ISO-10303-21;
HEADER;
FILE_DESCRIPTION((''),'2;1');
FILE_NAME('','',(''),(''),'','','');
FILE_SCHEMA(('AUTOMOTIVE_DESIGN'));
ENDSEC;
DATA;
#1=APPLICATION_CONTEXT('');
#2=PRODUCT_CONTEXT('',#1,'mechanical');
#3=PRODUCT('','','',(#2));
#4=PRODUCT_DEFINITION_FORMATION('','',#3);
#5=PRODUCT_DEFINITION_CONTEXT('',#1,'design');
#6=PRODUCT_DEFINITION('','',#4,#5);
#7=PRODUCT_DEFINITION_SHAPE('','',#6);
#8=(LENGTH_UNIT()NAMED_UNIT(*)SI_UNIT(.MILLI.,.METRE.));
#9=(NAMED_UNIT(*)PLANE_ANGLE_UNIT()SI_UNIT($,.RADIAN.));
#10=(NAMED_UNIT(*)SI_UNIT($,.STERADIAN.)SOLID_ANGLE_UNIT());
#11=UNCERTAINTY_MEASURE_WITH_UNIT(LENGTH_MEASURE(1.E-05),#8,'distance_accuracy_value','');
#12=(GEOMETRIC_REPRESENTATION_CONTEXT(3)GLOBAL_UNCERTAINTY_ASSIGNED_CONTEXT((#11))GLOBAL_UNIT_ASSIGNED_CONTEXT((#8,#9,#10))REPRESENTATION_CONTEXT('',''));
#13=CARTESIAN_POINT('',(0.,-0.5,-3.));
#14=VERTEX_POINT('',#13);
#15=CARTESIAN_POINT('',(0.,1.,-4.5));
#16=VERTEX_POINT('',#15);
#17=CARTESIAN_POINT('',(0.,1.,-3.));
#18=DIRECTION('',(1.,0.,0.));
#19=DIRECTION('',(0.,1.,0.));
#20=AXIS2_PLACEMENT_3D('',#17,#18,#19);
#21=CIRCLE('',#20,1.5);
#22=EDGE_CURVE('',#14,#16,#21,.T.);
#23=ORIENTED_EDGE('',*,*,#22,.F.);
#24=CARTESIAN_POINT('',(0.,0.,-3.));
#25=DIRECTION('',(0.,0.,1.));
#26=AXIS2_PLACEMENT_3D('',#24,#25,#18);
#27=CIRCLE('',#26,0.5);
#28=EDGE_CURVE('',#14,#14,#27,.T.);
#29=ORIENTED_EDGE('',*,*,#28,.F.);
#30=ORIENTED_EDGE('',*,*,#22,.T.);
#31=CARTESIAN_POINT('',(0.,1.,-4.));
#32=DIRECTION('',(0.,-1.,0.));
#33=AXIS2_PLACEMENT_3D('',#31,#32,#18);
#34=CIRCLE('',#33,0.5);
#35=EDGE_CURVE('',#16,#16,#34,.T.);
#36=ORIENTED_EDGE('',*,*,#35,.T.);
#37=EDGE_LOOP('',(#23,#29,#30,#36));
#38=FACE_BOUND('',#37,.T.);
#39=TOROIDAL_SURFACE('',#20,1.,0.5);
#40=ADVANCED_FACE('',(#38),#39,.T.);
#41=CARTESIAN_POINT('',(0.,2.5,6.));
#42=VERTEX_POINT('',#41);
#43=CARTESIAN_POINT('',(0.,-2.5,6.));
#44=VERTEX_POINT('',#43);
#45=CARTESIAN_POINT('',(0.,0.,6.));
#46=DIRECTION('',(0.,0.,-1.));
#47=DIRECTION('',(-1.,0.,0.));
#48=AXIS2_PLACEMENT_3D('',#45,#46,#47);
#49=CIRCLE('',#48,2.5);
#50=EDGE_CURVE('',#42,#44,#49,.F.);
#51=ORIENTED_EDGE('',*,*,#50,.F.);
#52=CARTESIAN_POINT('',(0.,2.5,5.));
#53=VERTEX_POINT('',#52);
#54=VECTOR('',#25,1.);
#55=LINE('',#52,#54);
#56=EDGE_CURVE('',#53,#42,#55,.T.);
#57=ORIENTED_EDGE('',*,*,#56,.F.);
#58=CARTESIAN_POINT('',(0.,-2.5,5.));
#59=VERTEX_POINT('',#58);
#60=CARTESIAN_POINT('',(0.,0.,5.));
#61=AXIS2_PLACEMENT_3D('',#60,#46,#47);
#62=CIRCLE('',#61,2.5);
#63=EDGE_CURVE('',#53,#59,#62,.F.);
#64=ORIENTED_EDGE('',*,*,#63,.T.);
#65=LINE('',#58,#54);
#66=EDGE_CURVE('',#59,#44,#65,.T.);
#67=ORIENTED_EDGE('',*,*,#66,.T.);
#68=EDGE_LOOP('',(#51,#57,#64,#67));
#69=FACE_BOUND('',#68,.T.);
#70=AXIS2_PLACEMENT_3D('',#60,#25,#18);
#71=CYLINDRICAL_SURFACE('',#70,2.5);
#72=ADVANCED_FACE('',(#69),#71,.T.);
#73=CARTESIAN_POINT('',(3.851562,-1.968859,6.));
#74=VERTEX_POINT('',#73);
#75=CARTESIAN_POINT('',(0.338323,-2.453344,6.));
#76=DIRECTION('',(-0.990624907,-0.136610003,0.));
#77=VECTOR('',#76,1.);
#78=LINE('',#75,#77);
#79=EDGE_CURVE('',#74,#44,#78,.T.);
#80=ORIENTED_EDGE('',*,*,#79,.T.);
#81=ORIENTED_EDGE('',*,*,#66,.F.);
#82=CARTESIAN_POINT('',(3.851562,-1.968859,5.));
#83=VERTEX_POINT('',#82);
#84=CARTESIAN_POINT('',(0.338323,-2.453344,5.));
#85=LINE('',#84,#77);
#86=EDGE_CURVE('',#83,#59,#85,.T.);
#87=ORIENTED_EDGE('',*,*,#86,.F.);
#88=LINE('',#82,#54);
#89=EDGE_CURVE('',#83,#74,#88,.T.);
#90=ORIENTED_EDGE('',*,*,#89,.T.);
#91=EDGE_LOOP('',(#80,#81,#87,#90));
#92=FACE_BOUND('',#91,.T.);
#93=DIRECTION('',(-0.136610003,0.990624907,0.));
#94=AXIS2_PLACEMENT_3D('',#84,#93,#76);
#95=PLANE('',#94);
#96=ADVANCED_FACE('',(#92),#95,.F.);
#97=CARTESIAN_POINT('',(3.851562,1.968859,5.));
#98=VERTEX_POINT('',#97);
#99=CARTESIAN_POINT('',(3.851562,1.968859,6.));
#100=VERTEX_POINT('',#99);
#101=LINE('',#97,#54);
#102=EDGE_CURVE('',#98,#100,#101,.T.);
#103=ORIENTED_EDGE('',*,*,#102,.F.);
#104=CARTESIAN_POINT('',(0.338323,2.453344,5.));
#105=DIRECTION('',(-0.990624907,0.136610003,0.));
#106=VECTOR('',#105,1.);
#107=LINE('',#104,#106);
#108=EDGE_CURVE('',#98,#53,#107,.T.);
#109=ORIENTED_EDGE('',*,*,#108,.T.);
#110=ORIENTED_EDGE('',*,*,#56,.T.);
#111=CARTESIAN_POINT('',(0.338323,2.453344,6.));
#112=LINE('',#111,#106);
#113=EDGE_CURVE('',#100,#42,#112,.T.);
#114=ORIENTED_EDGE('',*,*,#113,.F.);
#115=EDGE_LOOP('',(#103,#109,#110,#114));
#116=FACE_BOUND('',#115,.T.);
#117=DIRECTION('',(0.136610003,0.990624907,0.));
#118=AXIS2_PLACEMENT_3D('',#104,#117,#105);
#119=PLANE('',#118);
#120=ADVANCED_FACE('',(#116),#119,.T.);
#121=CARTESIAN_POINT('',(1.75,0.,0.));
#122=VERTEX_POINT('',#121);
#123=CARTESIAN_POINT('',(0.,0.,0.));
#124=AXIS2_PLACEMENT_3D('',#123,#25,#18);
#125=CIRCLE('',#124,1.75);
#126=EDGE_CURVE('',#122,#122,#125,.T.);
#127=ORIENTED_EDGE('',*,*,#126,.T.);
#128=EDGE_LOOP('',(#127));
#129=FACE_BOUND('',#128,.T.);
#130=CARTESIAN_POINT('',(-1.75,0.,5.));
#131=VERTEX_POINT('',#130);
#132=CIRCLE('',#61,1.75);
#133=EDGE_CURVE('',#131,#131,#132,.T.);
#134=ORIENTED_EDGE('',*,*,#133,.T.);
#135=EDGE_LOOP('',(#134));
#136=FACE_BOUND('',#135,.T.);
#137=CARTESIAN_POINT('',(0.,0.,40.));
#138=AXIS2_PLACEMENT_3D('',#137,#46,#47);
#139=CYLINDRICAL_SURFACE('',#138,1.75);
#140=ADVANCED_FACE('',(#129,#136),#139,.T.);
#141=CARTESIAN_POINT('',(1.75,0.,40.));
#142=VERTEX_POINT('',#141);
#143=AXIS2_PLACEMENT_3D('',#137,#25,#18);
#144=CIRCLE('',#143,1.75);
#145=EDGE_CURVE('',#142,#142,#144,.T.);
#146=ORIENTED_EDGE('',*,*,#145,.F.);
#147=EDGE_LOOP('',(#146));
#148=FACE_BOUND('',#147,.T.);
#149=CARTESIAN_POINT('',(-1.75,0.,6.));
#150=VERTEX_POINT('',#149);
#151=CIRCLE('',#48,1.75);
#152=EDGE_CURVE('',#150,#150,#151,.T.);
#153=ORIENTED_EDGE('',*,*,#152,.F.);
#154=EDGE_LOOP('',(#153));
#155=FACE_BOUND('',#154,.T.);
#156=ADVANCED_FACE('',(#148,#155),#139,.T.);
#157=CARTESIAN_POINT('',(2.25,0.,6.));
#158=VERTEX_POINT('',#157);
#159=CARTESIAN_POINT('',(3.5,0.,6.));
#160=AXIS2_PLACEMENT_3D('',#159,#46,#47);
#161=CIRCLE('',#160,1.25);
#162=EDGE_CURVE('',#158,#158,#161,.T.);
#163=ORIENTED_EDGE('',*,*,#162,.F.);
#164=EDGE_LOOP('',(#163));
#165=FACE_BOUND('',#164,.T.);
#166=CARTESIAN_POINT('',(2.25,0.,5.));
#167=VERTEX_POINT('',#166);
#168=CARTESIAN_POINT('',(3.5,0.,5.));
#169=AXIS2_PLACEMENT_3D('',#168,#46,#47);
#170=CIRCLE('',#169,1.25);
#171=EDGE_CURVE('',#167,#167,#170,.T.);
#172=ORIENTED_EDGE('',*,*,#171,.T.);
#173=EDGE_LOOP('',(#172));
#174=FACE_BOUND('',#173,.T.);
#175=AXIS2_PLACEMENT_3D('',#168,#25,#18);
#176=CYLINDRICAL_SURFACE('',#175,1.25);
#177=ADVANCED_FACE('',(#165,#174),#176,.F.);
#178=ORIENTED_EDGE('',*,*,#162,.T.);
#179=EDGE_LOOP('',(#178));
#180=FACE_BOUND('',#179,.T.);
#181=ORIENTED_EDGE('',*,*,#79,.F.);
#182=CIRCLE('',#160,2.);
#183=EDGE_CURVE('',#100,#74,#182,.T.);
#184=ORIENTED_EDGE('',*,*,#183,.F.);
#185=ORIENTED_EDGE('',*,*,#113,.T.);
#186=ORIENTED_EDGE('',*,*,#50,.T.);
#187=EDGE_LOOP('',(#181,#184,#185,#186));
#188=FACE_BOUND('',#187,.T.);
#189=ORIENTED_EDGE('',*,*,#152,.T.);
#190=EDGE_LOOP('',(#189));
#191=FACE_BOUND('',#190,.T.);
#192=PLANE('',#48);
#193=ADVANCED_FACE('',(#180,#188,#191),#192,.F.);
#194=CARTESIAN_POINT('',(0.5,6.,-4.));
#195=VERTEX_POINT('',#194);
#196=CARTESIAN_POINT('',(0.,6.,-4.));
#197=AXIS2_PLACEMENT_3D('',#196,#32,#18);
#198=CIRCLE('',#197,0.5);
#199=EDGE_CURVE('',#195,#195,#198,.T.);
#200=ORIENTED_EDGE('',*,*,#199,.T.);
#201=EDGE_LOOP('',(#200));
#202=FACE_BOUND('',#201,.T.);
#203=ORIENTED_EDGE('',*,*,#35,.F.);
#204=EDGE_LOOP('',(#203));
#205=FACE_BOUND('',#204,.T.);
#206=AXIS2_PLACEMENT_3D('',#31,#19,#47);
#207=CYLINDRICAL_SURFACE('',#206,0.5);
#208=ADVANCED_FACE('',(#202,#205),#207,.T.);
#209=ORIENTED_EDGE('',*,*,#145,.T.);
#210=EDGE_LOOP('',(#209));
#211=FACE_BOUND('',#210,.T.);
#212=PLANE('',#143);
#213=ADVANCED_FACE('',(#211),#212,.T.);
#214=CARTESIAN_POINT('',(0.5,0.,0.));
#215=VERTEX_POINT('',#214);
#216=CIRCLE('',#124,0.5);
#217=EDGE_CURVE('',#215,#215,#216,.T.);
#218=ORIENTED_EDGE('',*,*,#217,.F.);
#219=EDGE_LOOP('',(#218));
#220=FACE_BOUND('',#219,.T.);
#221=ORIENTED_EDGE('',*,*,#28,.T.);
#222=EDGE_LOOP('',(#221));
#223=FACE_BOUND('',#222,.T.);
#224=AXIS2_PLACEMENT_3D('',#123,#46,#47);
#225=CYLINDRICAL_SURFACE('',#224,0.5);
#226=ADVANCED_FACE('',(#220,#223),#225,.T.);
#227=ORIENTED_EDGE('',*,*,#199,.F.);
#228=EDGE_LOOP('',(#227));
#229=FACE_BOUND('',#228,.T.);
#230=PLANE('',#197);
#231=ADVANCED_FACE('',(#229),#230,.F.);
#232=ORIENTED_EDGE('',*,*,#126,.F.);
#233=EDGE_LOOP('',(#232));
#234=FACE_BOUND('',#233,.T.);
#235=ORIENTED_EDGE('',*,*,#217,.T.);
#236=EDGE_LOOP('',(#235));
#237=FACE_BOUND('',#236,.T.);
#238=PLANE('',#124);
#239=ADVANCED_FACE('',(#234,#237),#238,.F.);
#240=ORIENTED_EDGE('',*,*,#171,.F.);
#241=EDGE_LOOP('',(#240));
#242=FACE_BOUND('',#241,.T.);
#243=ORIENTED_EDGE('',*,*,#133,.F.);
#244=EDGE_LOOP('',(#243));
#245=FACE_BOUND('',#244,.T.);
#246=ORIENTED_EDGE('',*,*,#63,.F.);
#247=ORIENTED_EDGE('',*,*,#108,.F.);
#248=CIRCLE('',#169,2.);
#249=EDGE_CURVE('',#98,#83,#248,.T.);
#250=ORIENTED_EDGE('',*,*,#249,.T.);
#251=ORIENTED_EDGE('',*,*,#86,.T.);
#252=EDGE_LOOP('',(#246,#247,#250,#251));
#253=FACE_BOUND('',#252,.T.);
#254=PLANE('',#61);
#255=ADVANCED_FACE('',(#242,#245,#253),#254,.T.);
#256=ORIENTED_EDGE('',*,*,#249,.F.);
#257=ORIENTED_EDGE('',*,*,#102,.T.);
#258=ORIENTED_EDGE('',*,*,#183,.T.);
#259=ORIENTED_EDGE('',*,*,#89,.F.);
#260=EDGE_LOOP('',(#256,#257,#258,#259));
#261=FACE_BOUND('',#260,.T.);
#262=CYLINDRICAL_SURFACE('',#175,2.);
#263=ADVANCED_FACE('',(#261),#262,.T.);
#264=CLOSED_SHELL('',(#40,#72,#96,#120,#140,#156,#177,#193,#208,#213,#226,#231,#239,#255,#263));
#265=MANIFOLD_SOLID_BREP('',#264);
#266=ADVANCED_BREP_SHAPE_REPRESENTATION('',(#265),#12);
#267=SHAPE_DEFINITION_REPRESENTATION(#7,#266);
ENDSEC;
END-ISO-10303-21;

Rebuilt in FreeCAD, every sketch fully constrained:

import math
import FreeCAD as App
import Part
import Sketcher
from FreeCAD import Vector

doc = App.newDocument("Part")
body = doc.addObject("PartDesign::Body", "Body")

# Sketch on XY plane
sketch1 = body.newObject("Sketcher::SketchObject", "Sketch")
sketch1.AttachmentSupport = (doc.getObject("XY_Plane"), [""])
sketch1.MapMode = "FlatFace"
sketch1.addGeometry(Part.Circle(Vector(0, 0, 0), Vector(0, 0, 1), 1.8), False)
sketch1.addConstraint([
    Sketcher.Constraint("Coincident", 0, 3, -1, 1),
    Sketcher.Constraint("Diameter", 0, 3.5),
])
pad1 = body.newObject("PartDesign::Pad", "Pad")
pad1.Profile = sketch1
pad1.Length = 40

# Sketch on XY plane
sketch2 = body.newObject("Sketcher::SketchObject", "Sketch001")
sketch2.AttachmentSupport = (doc.getObject("XY_Plane"), [""])
sketch2.MapMode = "FlatFace"
sketch2.AttachmentOffset = App.Placement(Vector(0, 0, 6), App.Rotation())
sketch2.addGeometry([
    Part.LineSegment(Vector(0, 2.5, 0), Vector(3.9, 2, 0)),  # 0
    Part.ArcOfCircle(Part.Circle(Vector(3.5, 0, 0), Vector(0, 0, 1), 2), math.radians(-80), math.radians(80)),  # 1
    Part.LineSegment(Vector(3.9, -2, 0), Vector(0, -2.5, 0)),  # 2
    Part.ArcOfCircle(Part.Circle(Vector(0, 0, 0), Vector(0, 0, 1), 2.5), math.radians(90), math.radians(270)),  # 3
    Part.Circle(Vector(3.5, 0, 0), Vector(0, 0, 1), 1.2),  # 4
], False)
sketch2.addConstraint([
    Sketcher.Constraint("Coincident", 0, 2, 1, 2),
    Sketcher.Constraint("Coincident", 1, 1, 2, 1),
    Sketcher.Constraint("Coincident", 2, 2, 3, 2),
    Sketcher.Constraint("Coincident", 3, 1, 0, 1),
    Sketcher.Constraint("Coincident", 3, 3, -1, 1),
    Sketcher.Constraint("Coincident", 4, 3, 1, 3),
    Sketcher.Constraint("Symmetric", 0, 2, 1, 1, -1),
    Sketcher.Constraint("PointOnObject", 2, 2, -2),
    Sketcher.Constraint("PointOnObject", 3, 1, -2),
    Sketcher.Constraint("Radius", 1, 2.0),
    Sketcher.Constraint("Diameter", 4, 2.5),
    Sketcher.Constraint("Radius", 3, 2.5),
    Sketcher.Constraint("DistanceX", -1, 1, 1, 3, 3.5),
    Sketcher.Constraint("DistanceX", -1, 1, 0, 2, 3.851562),
])
pad2 = body.newObject("PartDesign::Pad", "Pad001")
pad2.Profile = sketch2
pad2.Length = 1
pad2.Reversed = True

# Sketch on XY plane
sketch3 = body.newObject("Sketcher::SketchObject", "Sketch002")
sketch3.AttachmentSupport = (doc.getObject("XY_Plane"), [""])
sketch3.MapMode = "FlatFace"
sketch3.addGeometry(Part.Circle(Vector(0, 0, 0), Vector(0, 0, 1), 0.5), False)
sketch3.addConstraint([
    Sketcher.Constraint("Coincident", 0, 3, -1, 1),
    Sketcher.Constraint("Diameter", 0, 1.0),
])

# Sketch on YZ plane
sketch4 = body.newObject("Sketcher::SketchObject", "Sketch003")
sketch4.AttachmentSupport = (doc.getObject("YZ_Plane"), [""])
sketch4.MapMode = "FlatFace"
sketch4.addGeometry([
    Part.LineSegment(Vector(0, 0, 0), Vector(0, -3, 0)),
    Part.ArcOfCircle(Part.Circle(Vector(1, -3, 0), Vector(0, 0, 1), 1), math.radians(-180), math.radians(-90)),
    Part.LineSegment(Vector(1, -4, 0), Vector(6, -4, 0)),
], False)
sketch4.addConstraint([
    Sketcher.Constraint("Tangent", 0, 2, 1, 1),
    Sketcher.Constraint("Tangent", 1, 2, 2, 1),
    Sketcher.Constraint("Vertical", 0),
    Sketcher.Constraint("Horizontal", 2),
    Sketcher.Constraint("Coincident", 0, 1, -1, 1),
    Sketcher.Constraint("Radius", 1, 1.0),
    Sketcher.Constraint("DistanceX", 2, 1, 2, 2, 5.0),
    Sketcher.Constraint("DistanceY", 0, 2, 0, 1, 3.0),
])
doc.recompute()

additivepipe = body.newObject("PartDesign::AdditivePipe", "AdditivePipe")
additivepipe.Profile = sketch3
additivepipe.Spine = (sketch4, ["Edge1", "Edge2", "Edge3"])

doc.recompute()
